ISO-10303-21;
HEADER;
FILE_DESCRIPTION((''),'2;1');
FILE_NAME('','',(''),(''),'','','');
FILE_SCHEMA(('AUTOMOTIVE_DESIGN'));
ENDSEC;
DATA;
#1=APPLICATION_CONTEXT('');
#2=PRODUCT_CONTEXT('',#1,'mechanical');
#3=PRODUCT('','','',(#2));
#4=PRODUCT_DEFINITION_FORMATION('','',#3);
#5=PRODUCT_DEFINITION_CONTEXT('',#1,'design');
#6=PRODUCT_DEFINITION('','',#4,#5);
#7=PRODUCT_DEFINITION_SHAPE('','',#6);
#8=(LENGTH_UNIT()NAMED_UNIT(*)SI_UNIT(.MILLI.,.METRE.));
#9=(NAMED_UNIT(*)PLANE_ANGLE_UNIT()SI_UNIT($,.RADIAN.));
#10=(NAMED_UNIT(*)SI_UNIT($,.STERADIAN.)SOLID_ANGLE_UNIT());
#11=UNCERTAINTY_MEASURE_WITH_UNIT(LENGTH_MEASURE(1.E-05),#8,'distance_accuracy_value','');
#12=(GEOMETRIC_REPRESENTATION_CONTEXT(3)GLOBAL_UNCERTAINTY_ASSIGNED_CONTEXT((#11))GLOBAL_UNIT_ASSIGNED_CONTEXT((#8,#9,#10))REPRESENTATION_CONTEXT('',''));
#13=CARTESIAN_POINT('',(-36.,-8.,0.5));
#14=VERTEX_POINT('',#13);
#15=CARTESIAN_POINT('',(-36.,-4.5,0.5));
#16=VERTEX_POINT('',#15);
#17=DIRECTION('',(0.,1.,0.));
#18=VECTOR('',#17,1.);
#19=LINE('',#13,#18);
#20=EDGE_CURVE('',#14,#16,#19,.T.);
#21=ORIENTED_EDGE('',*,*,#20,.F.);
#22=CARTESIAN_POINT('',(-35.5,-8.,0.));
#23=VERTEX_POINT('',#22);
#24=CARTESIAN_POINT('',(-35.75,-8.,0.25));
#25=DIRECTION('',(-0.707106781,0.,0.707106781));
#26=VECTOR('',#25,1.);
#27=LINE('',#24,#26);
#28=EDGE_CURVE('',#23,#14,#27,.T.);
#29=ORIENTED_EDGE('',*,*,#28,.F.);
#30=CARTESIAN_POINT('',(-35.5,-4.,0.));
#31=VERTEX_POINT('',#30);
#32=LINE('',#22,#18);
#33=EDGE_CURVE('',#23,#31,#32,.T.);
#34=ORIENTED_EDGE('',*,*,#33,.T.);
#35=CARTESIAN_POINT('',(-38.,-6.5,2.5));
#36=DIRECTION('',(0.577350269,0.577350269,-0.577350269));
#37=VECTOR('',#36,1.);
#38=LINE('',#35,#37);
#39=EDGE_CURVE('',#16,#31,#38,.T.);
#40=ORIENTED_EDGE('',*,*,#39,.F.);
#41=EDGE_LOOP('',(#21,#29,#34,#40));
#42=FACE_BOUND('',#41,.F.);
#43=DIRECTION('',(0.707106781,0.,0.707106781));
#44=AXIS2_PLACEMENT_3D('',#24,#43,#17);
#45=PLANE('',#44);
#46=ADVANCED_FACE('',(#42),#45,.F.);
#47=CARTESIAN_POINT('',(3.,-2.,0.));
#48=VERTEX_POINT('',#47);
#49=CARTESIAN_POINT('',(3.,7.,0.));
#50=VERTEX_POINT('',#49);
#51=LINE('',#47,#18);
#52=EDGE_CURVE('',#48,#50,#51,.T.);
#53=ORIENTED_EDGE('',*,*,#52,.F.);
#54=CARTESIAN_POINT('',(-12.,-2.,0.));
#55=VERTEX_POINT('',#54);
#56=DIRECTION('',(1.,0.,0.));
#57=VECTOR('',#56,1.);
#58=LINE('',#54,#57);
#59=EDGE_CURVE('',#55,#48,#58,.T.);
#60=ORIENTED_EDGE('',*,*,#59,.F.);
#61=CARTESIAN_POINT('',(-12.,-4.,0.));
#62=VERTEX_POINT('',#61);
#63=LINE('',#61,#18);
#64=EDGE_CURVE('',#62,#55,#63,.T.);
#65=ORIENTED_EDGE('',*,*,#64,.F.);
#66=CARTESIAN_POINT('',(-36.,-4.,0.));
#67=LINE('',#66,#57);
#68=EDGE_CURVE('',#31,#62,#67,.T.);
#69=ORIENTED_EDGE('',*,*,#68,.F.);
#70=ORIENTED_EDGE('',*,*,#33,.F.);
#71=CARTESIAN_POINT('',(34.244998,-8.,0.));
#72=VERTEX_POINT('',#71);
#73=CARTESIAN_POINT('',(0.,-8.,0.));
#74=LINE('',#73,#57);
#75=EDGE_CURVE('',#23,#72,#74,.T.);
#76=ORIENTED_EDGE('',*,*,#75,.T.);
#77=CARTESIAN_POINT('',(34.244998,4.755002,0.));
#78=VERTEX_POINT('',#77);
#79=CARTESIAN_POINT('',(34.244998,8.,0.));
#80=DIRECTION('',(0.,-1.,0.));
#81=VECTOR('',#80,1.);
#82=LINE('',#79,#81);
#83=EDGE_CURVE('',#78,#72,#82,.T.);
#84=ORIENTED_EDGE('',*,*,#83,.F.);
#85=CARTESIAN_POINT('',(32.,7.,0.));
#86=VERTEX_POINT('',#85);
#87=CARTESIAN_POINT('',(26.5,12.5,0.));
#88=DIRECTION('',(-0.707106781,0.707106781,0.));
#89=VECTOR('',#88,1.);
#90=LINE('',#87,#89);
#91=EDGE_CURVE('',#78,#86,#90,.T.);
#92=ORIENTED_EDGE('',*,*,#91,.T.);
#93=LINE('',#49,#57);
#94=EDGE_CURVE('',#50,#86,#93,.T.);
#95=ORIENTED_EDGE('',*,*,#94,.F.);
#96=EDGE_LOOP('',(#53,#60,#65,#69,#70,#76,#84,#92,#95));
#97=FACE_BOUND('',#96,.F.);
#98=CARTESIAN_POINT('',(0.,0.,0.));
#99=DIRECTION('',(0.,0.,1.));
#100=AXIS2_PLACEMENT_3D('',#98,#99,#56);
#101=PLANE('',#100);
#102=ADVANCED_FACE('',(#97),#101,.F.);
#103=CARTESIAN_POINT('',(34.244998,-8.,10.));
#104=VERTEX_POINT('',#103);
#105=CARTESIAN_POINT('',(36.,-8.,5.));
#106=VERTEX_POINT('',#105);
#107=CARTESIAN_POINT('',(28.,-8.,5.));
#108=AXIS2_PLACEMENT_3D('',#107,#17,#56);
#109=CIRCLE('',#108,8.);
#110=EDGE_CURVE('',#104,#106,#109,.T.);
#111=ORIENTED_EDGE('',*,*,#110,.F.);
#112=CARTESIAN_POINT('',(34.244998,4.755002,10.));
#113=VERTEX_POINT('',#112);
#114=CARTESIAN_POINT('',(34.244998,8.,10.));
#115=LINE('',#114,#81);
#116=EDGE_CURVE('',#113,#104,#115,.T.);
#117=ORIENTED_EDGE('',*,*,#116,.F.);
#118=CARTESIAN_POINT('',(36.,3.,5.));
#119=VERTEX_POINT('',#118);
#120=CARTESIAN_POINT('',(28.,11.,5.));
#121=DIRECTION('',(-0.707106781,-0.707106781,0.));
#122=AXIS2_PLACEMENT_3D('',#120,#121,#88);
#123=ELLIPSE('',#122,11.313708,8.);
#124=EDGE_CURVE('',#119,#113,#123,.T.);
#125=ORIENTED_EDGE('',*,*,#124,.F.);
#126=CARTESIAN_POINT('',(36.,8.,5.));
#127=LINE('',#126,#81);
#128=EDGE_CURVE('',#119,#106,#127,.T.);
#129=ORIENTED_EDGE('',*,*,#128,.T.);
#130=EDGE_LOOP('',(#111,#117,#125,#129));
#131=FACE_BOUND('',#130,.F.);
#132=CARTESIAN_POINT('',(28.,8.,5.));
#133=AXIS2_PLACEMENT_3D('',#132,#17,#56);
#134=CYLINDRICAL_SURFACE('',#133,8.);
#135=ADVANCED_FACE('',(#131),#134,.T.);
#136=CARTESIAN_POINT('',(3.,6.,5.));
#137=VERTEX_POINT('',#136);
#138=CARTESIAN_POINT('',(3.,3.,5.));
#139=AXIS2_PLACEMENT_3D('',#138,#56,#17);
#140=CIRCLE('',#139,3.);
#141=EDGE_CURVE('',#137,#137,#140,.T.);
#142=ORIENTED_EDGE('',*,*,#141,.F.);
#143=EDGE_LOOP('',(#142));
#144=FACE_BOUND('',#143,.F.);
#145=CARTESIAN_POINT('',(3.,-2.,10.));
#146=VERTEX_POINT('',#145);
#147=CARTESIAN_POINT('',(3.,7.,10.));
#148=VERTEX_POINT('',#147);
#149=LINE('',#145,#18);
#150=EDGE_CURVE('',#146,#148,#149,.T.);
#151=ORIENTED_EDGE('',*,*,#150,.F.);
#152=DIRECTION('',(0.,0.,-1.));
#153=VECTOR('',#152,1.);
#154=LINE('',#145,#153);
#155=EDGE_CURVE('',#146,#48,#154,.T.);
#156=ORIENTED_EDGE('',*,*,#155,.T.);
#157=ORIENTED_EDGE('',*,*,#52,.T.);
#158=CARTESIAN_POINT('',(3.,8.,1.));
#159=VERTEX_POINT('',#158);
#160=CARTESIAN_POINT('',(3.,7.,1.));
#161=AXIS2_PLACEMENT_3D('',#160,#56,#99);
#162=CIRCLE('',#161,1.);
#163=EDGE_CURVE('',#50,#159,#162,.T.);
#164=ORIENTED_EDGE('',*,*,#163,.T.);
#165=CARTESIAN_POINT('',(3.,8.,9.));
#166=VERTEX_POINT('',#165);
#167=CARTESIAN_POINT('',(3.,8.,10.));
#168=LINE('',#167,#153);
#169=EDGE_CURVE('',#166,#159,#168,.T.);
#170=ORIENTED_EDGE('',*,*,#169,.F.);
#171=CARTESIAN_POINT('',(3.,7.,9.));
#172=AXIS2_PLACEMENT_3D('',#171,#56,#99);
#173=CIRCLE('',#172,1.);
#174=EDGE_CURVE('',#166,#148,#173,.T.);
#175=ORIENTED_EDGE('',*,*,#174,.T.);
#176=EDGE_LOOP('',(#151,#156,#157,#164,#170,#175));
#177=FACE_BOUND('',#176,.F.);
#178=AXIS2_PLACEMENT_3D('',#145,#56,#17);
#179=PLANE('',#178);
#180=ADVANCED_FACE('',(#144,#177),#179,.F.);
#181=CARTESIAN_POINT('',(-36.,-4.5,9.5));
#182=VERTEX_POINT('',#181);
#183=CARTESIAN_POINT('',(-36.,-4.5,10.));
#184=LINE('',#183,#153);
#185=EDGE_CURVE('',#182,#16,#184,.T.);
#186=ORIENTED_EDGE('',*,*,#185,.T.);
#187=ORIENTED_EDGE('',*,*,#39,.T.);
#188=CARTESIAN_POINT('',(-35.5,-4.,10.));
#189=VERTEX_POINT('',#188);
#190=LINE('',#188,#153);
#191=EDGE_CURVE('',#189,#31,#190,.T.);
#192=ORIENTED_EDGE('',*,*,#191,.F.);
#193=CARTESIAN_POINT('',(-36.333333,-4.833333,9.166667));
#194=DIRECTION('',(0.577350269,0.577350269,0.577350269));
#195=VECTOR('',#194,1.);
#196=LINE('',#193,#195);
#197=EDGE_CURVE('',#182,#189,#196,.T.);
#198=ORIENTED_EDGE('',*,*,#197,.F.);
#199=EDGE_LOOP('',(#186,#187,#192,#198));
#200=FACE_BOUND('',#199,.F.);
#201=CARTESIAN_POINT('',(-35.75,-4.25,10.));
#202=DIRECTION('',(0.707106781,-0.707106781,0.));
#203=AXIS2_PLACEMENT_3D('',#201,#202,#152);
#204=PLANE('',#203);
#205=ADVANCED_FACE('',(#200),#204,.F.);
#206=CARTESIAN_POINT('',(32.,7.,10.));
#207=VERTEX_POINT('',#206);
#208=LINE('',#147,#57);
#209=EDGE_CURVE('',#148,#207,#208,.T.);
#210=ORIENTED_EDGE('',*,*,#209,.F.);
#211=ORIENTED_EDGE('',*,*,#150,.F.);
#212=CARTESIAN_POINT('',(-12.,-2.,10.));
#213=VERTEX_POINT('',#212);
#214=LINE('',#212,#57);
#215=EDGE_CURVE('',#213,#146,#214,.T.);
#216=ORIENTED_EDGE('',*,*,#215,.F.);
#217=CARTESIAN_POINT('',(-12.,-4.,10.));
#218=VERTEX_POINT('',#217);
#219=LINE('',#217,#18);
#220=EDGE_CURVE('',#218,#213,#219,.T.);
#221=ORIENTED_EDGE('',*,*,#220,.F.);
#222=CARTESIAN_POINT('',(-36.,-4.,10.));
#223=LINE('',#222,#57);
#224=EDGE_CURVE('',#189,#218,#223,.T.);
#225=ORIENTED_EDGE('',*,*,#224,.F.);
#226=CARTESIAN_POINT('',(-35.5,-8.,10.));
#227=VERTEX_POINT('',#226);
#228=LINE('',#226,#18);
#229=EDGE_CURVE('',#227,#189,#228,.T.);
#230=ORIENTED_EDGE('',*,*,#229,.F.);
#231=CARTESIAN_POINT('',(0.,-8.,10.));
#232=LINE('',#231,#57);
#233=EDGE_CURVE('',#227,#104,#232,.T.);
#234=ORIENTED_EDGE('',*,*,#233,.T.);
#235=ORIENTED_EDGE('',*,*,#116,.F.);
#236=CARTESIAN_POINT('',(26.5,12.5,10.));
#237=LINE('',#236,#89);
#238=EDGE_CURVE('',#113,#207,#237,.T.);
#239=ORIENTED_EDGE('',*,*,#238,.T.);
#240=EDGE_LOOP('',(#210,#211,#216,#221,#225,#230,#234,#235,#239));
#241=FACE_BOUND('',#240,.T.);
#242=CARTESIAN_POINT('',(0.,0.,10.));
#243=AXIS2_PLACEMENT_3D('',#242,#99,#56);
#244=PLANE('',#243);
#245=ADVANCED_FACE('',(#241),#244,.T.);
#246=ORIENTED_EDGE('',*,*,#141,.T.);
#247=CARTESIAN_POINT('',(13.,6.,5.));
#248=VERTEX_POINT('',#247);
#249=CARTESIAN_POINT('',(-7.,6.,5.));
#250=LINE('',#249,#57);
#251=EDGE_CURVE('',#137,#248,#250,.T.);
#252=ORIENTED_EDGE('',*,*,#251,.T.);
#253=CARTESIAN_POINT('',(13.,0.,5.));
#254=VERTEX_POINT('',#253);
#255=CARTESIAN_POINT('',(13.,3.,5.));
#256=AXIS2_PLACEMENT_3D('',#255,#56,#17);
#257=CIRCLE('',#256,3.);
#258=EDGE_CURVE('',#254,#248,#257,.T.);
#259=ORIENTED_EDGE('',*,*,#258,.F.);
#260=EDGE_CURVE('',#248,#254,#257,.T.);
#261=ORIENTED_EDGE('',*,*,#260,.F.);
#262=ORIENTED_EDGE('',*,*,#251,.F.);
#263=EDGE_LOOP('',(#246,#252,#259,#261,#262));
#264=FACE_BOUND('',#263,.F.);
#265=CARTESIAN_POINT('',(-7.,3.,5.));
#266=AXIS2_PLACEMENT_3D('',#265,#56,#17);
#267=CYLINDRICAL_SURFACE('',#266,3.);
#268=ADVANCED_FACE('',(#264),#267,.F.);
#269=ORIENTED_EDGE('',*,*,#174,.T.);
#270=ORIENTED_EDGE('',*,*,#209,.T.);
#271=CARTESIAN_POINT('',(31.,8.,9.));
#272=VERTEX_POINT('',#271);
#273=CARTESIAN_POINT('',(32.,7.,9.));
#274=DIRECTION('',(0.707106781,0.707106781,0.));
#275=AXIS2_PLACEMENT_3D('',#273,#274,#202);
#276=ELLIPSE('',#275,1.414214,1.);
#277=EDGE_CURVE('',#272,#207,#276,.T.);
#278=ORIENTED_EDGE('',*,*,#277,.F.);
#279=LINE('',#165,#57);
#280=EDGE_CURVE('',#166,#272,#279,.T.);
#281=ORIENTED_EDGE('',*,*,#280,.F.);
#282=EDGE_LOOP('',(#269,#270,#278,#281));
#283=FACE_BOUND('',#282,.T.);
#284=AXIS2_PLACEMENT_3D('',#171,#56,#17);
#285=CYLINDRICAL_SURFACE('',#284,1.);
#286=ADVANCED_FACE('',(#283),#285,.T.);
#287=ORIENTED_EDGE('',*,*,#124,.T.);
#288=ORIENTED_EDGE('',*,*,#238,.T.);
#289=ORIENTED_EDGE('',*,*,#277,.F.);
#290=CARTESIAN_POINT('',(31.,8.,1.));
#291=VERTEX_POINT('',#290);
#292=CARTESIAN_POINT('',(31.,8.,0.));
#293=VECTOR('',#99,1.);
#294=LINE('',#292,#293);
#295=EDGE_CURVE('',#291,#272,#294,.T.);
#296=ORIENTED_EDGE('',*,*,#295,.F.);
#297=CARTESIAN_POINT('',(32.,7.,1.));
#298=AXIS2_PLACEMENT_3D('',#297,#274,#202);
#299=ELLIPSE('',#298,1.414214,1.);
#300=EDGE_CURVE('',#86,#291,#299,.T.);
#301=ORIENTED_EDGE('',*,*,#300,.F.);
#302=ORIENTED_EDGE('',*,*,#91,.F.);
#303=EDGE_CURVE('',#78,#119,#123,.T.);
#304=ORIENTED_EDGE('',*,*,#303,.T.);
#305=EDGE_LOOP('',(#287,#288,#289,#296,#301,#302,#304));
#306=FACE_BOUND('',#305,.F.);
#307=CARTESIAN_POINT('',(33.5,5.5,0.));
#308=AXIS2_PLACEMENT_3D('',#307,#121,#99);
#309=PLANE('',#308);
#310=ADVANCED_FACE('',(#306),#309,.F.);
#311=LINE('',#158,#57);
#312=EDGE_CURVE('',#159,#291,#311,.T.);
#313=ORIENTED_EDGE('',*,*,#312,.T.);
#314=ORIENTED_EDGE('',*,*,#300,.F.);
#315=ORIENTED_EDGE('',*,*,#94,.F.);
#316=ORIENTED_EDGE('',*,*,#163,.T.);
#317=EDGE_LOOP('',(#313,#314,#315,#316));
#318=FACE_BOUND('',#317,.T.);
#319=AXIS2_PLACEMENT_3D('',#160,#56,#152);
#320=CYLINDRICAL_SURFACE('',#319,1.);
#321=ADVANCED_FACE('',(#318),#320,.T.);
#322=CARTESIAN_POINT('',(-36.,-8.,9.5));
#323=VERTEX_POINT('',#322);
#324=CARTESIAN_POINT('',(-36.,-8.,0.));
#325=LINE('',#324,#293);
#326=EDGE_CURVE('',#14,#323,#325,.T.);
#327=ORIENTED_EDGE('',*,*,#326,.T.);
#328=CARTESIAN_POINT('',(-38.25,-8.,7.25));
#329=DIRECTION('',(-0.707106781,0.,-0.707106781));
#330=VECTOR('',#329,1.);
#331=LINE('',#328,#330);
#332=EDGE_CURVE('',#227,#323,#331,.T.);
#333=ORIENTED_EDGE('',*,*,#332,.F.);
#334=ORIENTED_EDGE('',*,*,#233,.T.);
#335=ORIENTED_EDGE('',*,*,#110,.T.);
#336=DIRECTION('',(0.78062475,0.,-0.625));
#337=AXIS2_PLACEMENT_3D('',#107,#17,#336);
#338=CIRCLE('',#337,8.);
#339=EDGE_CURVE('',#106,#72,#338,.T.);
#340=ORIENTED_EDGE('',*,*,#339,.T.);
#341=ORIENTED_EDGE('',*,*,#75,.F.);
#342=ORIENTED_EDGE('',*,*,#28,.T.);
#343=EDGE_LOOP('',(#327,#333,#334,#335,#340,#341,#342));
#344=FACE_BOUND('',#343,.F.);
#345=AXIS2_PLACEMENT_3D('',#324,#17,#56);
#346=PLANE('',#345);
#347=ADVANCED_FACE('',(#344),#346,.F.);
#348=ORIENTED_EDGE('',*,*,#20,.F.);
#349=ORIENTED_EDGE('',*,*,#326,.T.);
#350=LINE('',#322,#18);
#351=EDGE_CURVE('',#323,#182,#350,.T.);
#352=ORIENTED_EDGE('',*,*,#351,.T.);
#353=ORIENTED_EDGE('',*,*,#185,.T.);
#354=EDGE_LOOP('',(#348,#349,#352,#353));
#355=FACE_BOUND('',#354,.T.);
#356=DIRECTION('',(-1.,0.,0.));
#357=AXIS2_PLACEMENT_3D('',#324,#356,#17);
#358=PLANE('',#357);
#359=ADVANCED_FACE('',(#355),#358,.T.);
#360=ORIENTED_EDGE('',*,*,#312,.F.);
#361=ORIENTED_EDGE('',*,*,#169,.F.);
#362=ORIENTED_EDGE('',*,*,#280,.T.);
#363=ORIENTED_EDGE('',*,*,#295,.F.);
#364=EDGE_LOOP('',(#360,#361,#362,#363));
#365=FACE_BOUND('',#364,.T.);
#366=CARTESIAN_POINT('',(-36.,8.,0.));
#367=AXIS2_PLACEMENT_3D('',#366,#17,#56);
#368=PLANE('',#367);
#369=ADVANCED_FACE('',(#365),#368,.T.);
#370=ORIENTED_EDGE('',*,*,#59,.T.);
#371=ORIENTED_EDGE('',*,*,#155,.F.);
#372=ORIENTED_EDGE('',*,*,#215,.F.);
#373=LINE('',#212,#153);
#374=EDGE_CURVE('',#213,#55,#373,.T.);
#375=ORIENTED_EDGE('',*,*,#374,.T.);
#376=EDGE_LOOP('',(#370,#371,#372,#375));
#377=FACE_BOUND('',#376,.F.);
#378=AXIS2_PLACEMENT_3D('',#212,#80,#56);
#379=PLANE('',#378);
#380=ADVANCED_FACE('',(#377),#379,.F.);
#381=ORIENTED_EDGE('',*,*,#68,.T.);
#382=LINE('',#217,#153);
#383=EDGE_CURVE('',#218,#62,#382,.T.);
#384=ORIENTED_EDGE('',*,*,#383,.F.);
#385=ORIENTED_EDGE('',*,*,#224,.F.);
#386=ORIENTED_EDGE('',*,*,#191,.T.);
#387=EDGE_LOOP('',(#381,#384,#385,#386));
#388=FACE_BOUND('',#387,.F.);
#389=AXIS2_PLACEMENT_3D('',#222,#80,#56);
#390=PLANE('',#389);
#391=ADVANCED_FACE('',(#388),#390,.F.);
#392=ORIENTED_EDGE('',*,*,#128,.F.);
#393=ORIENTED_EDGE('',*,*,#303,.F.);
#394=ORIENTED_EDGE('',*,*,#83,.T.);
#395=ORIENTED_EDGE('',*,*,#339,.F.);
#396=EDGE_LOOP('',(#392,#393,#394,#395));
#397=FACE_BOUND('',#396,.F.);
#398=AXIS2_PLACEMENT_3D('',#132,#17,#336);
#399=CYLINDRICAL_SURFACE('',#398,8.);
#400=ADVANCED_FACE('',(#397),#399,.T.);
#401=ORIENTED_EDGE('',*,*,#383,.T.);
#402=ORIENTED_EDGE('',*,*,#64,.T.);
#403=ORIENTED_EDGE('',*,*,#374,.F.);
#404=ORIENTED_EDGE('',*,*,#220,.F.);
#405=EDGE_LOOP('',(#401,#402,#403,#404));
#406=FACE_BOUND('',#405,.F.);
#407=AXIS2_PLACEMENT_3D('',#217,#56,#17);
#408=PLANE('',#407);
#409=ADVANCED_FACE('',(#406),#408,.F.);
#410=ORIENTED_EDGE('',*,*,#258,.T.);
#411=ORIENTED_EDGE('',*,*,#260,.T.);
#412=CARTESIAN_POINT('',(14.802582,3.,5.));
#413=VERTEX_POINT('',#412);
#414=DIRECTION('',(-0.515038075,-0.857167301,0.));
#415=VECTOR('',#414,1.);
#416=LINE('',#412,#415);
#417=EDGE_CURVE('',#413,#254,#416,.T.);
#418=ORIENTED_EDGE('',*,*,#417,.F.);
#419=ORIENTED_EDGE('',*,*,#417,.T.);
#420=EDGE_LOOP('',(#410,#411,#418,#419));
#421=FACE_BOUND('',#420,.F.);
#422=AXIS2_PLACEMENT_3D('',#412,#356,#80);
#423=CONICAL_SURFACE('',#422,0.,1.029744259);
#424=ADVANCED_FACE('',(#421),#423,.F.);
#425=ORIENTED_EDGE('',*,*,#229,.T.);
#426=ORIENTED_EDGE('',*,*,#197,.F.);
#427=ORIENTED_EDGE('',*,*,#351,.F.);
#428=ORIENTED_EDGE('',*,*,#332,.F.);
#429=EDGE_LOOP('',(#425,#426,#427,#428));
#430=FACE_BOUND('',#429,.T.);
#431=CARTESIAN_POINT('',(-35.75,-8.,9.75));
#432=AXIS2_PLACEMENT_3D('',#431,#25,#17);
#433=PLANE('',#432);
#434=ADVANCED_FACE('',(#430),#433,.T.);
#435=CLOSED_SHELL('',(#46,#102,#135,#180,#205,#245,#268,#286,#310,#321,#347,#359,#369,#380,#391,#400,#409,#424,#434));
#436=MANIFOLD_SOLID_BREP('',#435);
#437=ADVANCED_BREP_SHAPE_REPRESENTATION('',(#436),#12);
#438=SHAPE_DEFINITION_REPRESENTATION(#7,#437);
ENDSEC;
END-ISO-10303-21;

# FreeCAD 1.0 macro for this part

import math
import FreeCAD as App
import Part
import Sketcher

V = App.Vector


def edges_at(feature, points):
    """Names of the edges that pass closest to the given points."""
    edges = feature.Shape.Edges
    near = lambda p: min(range(len(edges)), key=lambda i: edges[i].distToShape(Part.Vertex(*p))[0])
    return sorted({f"Edge{near(p) + 1}" for p in points})


def add_polygon(sketch, points):
    """Adds a closed chain of lines whose ends are joined by coincident constraints."""
    first, n = sketch.GeometryCount, len(points)
    for a, b in zip(points, points[1:] + points[:1]):
        sketch.addGeometry(Part.LineSegment(App.Vector(*a, 0), App.Vector(*b, 0)), False)
    for i in range(n):
        sketch.addConstraint(Sketcher.Constraint("Coincident", first + i, 2, first + (i + 1) % n, 1))

doc = App.newDocument("Part")
body = doc.addObject("PartDesign::Body", "Body")

sketch1 = body.newObject("Sketcher::SketchObject", "Sketch")
sketch1.AttachmentSupport = (doc.getObject("XY_Plane"), [""])
sketch1.MapMode = "FlatFace"
add_polygon(sketch1, [(-36, 8), (-36, -8), (36, -8), (36, 8)])
sketch1.addConstraint(Sketcher.Constraint("Vertical", 0))
sketch1.addConstraint(Sketcher.Constraint("Horizontal", 1))
sketch1.addConstraint(Sketcher.Constraint("Vertical", 2))
sketch1.addConstraint(Sketcher.Constraint("Horizontal", 3))
sketch1.addConstraint(Sketcher.Constraint("Symmetric", 0, 2, 2, 2, -1, 1))
sketch1.addConstraint(Sketcher.Constraint("DistanceX", 1, 1, 1, 2, 72.0))
sketch1.addConstraint(Sketcher.Constraint("DistanceY", 0, 2, 0, 1, 16.0))
pad1 = body.newObject("PartDesign::Pad", "Pad")
pad1.Profile = sketch1
pad1.Length = 10
doc.recompute()

chamfer = body.newObject("PartDesign::Chamfer", "Chamfer")
chamfer.Base = (pad1, edges_at(pad1, [(36, 8, 5)]))
chamfer.Size = 5

sketch2 = body.newObject("Sketcher::SketchObject", "Sketch001")
sketch2.AttachmentSupport = (doc.getObject("XY_Plane"), [""])
sketch2.MapMode = "FlatFace"
sketch2.AttachmentOffset = App.Placement(V(0, 0, 10), App.Rotation())
add_polygon(sketch2, [(3, -2), (3, 8), (-36, 8), (-36, -4), (-12, -4), (-12, -2)])
sketch2.addConstraint(Sketcher.Constraint("Vertical", 0))
sketch2.addConstraint(Sketcher.Constraint("Horizontal", 1))
sketch2.addConstraint(Sketcher.Constraint("Vertical", 2))
sketch2.addConstraint(Sketcher.Constraint("Horizontal", 3))
sketch2.addConstraint(Sketcher.Constraint("Vertical", 4))
sketch2.addConstraint(Sketcher.Constraint("Horizontal", 5))
sketch2.addConstraint(Sketcher.Constraint("DistanceX", 1, 2, 1, 1, 39.0))
sketch2.addConstraint(Sketcher.Constraint("DistanceX", 3, 1, 3, 2, 24.0))
sketch2.addConstraint(Sketcher.Constraint("DistanceY", 0, 1, 0, 2, 10.0))
sketch2.addConstraint(Sketcher.Constraint("DistanceY", 2, 2, 2, 1, 12.0))
sketch2.addConstraint(Sketcher.Constraint("DistanceX", -1, 1, 0, 2, 3.0))
sketch2.addConstraint(Sketcher.Constraint("DistanceY", -1, 1, 0, 2, 8.0))
pocket1 = body.newObject("PartDesign::Pocket", "Pocket")
pocket1.Profile = sketch2
pocket1.Type = "ThroughAll"
doc.recompute()

chamfer2 = body.newObject("PartDesign::Chamfer", "Chamfer001")
chamfer2.Base = (pocket1, edges_at(pocket1, [(-36, -4, 5), (-36, -6, 10), (-36, -6, 0)]))
chamfer2.Size = 0.5
doc.recompute()

fillet = body.newObject("PartDesign::Fillet", "Fillet")
fillet.Base = (chamfer2, edges_at(chamfer2, [(17, 8, 10), (17, 8, 0)]))
fillet.Radius = 1

sketch3 = body.newObject("Sketcher::SketchObject", "Sketch002")
sketch3.AttachmentSupport = (doc.getObject("XZ_Plane"), [""])
sketch3.MapMode = "FlatFace"
sketch3.AttachmentOffset = App.Placement(V(0, 0, -8), App.Rotation())
sketch3.addGeometry(Part.ArcOfCircle(Part.Circle(V(28, 5, 0), V(0, 0, 1), 8), math.radians(-39), math.radians(0)), False)
sketch3.addGeometry(Part.LineSegment(V(36, 5, 0), V(36, 0, 0)), False)
sketch3.addGeometry(Part.LineSegment(V(36, 0, 0), V(34.2, 0, 0)), False)
sketch3.addGeometry(Part.ArcOfCircle(Part.Circle(V(28, 5, 0), V(0, 0, 1), 8), math.radians(0), math.radians(39)), False)
sketch3.addGeometry(Part.LineSegment(V(34.2, 10, 0), V(36, 10, 0)), False)
sketch3.addGeometry(Part.LineSegment(V(36, 10, 0), V(36, 5, 0)), False)
sketch3.addConstraint(Sketcher.Constraint("Tangent", 0, 2, 1, 1))
sketch3.addConstraint(Sketcher.Constraint("Coincident", 1, 2, 2, 1))
sketch3.addConstraint(Sketcher.Constraint("Coincident", 2, 2, 0, 1))
sketch3.addConstraint(Sketcher.Constraint("Coincident", 3, 2, 4, 1))
sketch3.addConstraint(Sketcher.Constraint("Coincident", 4, 2, 5, 1))
sketch3.addConstraint(Sketcher.Constraint("Tangent", 5, 2, 3, 1))
sketch3.addConstraint(Sketcher.Constraint("Vertical", 1))
sketch3.addConstraint(Sketcher.Constraint("Horizontal", 2))
sketch3.addConstraint(Sketcher.Constraint("Horizontal", 4))
sketch3.addConstraint(Sketcher.Constraint("Vertical", 5))
sketch3.addConstraint(Sketcher.Constraint("Coincident", 3, 3, 0, 3))
sketch3.addConstraint(Sketcher.Constraint("Equal", 0, 3))
sketch3.addConstraint(Sketcher.Constraint("PointOnObject", 1, 2, -1))
sketch3.addConstraint(Sketcher.Constraint("Vertical", 2, 2, 3, 2))
sketch3.addConstraint(Sketcher.Constraint("Radius", 0, 8.0))
sketch3.addConstraint(Sketcher.Constraint("DistanceY", 1, 2, 1, 1, 5.0))
sketch3.addConstraint(Sketcher.Constraint("DistanceX", -1, 1, 0, 3, 28.0))
pocket2 = body.newObject("PartDesign::Pocket", "Pocket001")
pocket2.Profile = sketch3
pocket2.Length = 25
pocket2.Reversed = True

sketch4 = body.newObject("Sketcher::SketchObject", "Sketch003")
sketch4.AttachmentSupport = (doc.getObject("YZ_Plane"), [""])
sketch4.MapMode = "FlatFace"
sketch4.AttachmentOffset = App.Placement(V(0, 0, 3), App.Rotation())
sketch4.addGeometry(Part.Circle(V(3, 5, 0), V(0, 0, 1), 3), False)
sketch4.addConstraint(Sketcher.Constraint("Diameter", 0, 6.0))
sketch4.addConstraint(Sketcher.Constraint("DistanceX", -1, 1, 0, 3, 3.0))
sketch4.addConstraint(Sketcher.Constraint("DistanceY", -1, 1, 0, 3, 5.0))
doc.recompute()
hole = body.newObject("PartDesign::Hole", "Hole")
hole.Profile = sketch4
hole.ThreadType = "None"
hole.Diameter = 6
hole.DepthType = "Dimension"
hole.Depth = 10
hole.DrillPoint = "Angled"
hole.DrillPointAngle = 118
hole.Reversed = True

doc.recompute()
